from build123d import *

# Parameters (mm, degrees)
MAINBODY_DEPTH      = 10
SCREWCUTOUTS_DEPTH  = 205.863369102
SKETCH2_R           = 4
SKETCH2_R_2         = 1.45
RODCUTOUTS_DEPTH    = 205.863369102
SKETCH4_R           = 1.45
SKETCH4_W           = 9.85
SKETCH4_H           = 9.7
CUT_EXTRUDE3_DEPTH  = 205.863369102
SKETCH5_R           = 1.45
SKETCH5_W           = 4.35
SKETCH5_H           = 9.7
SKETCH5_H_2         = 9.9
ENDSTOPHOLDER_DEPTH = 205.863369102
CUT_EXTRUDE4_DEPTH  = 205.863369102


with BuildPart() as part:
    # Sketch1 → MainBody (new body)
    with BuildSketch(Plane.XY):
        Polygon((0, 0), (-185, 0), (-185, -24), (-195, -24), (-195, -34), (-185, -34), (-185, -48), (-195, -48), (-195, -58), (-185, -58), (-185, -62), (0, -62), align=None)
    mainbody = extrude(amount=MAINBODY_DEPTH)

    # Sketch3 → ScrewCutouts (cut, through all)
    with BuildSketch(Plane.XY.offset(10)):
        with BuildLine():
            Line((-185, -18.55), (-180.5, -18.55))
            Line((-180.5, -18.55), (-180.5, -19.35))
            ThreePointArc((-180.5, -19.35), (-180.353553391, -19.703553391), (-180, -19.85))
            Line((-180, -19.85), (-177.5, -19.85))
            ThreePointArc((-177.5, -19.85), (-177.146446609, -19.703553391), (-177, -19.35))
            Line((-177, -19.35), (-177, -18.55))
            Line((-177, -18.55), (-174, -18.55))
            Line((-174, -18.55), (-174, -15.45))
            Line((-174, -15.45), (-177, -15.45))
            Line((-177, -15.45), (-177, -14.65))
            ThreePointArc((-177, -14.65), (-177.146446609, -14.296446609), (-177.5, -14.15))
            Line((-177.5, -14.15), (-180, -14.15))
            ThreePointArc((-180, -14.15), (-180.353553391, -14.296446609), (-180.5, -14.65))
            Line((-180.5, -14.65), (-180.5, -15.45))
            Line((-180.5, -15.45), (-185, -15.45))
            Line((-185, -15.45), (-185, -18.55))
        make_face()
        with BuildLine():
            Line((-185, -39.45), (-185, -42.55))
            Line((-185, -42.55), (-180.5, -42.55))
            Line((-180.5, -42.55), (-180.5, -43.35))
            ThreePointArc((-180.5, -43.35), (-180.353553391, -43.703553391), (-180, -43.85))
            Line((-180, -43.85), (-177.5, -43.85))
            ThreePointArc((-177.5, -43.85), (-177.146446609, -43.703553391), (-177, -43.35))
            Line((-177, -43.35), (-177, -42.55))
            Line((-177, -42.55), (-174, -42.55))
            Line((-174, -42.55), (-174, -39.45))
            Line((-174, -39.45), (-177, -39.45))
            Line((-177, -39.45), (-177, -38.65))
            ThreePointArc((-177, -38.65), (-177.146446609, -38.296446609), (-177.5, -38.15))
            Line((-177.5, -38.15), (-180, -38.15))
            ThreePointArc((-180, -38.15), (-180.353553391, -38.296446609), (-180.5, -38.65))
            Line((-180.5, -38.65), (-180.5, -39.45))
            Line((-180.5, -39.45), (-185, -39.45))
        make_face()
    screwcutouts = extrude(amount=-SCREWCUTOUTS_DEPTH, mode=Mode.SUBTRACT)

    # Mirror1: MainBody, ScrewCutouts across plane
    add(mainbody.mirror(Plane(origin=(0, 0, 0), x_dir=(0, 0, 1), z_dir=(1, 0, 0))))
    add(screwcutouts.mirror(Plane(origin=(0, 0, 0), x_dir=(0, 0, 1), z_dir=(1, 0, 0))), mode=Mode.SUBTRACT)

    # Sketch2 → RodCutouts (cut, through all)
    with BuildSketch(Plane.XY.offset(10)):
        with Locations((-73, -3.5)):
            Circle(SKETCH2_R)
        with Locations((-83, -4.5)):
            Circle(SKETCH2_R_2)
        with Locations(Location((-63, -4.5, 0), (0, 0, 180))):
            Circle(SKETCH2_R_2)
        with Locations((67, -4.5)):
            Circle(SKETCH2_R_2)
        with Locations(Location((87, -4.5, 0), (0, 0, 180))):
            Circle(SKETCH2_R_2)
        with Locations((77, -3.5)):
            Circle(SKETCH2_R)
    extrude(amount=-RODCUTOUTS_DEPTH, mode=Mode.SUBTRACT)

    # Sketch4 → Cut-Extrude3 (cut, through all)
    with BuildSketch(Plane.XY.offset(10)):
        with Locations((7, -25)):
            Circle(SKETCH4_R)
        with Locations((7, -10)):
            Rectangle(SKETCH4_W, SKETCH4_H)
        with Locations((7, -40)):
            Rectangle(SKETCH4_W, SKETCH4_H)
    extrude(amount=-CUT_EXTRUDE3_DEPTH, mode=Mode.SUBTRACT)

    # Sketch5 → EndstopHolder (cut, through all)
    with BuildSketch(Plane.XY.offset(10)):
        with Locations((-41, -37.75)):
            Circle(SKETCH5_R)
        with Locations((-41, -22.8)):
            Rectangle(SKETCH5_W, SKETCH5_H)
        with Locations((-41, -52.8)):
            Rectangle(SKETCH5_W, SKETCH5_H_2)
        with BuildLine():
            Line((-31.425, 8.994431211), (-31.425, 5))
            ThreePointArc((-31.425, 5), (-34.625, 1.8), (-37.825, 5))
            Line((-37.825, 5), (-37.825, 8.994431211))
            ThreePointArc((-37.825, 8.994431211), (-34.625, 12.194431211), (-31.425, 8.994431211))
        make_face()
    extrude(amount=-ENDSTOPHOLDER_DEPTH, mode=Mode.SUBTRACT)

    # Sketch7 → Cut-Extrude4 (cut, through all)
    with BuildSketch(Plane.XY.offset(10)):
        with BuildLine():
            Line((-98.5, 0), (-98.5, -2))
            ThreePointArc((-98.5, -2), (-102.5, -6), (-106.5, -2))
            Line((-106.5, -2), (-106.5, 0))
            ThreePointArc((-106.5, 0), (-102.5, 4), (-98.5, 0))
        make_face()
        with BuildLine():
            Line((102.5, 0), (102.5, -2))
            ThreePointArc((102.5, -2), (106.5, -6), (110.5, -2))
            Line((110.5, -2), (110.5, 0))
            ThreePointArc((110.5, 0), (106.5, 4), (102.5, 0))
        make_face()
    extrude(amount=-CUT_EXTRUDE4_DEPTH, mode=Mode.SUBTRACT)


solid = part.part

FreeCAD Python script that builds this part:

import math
import FreeCAD as App
import Part
import Sketcher

V = App.Vector

doc = App.newDocument("Part")
params = doc.addObject("Spreadsheet::Sheet", "Params")
for row, (alias, value) in enumerate([
    ("sketch1_width", "185 mm"),
    ("sketch1_width2", "10 mm"),
    ("sketch1_height", "24 mm"),
    ("sketch1_height2", "14 mm"),
    ("sketch1_height3", "4 mm"),
    ("pad1_length", "10 mm"),
    ("sketch2_radius", "0.5 mm"),
    ("sketch2_width", "3 mm"),
    ("sketch2_width2", "4.5 mm"),
    ("sketch2_width3", "2.5 mm"),
    ("sketch2_height", "0.8 mm"),
    ("sketch3_diameter", "8 mm"),
    ("sketch3_diameter2", "2.9 mm"),
    ("sketch4_diameter", "2.9 mm"),
    ("sketch4_height", "9.7 mm"),
    ("sketch4_width", "9.85 mm"),
    ("sketch5_diameter", "2.9 mm"),
    ("sketch5_radius", "3.2 mm"),
    ("sketch5_height", "9.7 mm"),
    ("sketch5_height2", "9.9 mm"),
    ("sketch5_width", "4.35 mm"),
    ("sketch6_radius", "4 mm"),
    ("sketch6_height", "2 mm"),
], start=1):
    params.set(f"A{row}", alias)
    params.set(f"B{row}", "=" + value)
    params.setAlias(f"B{row}", alias)

body = doc.addObject("PartDesign::Body", "Body")

sketch1 = body.newObject("Sketcher::SketchObject", "Sketch")
sketch1.AttachmentSupport = (doc.getObject("XY_Plane"), [""])
sketch1.MapMode = "FlatFace"
sketch1.addGeometry([
    Part.LineSegment(V(0, 0, 0), V(-185, 0, 0)),
    Part.LineSegment(V(-185, 0, 0), V(-185, -24, 0)),
    Part.LineSegment(V(-185, -24, 0), V(-195, -24, 0)),
    Part.LineSegment(V(-195, -24, 0), V(-195, -34, 0)),
    Part.LineSegment(V(-195, -34, 0), V(-185, -34, 0)),
    Part.LineSegment(V(-185, -34, 0), V(-185, -48, 0)),
    Part.LineSegment(V(-185, -48, 0), V(-195, -48, 0)),
    Part.LineSegment(V(-195, -48, 0), V(-195, -58, 0)),
    Part.LineSegment(V(-195, -58, 0), V(-185, -58, 0)),
    Part.LineSegment(V(-185, -58, 0), V(-185, -62, 0)),
    Part.LineSegment(V(-185, -62, 0), V(0, -62, 0)),
    Part.LineSegment(V(0, -62, 0), V(0, 0, 0)),
], False)
sketch1.addConstraint([
    Sketcher.Constraint("Coincident", 0, 2, 1, 1),
    Sketcher.Constraint("Coincident", 1, 2, 2, 1),
    Sketcher.Constraint("Coincident", 2, 2, 3, 1),
    Sketcher.Constraint("Coincident", 3, 2, 4, 1),
    Sketcher.Constraint("Coincident", 4, 2, 5, 1),
    Sketcher.Constraint("Coincident", 5, 2, 6, 1),
    Sketcher.Constraint("Coincident", 6, 2, 7, 1),
    Sketcher.Constraint("Coincident", 7, 2, 8, 1),
    Sketcher.Constraint("Coincident", 8, 2, 9, 1),
    Sketcher.Constraint("Coincident", 9, 2, 10, 1),
    Sketcher.Constraint("Coincident", 10, 2, 11, 1),
    Sketcher.Constraint("Coincident", 11, 2, 0, 1),
    Sketcher.Constraint("Horizontal", 0),
    Sketcher.Constraint("Vertical", 1),
    Sketcher.Constraint("Horizontal", 2),
    Sketcher.Constraint("Vertical", 3),
    Sketcher.Constraint("Horizontal", 4),
    Sketcher.Constraint("Vertical", 5),
    Sketcher.Constraint("Horizontal", 6),
    Sketcher.Constraint("Vertical", 7),
    Sketcher.Constraint("Horizontal", 8),
    Sketcher.Constraint("Vertical", 9),
    Sketcher.Constraint("Horizontal", 10),
    Sketcher.Constraint("Vertical", 11),
    Sketcher.Constraint("Coincident", 11, 2, -1, 1),
    Sketcher.Constraint("Vertical", 1, 2, 4, 2),
    Sketcher.Constraint("Vertical", 3, 2, 6, 2),
    Sketcher.Constraint("Vertical", 5, 2, 8, 2),
    Sketcher.Constraint("Equal", 8, 3),
    Sketcher.Constraint("Equal", 3, 7),
    Sketcher.Constraint("DistanceX", 0, 2, 0, 1, 185.0),
    Sketcher.Constraint("DistanceX", 2, 2, 2, 1, 10.0),
    Sketcher.Constraint("DistanceY", 1, 2, 1, 1, 24.0),
    Sketcher.Constraint("DistanceY", 5, 2, 5, 1, 14.0),
    Sketcher.Constraint("DistanceY", 9, 2, 9, 1, 4.0),
])
sketch1.setExpression("Constraints[30]", "Params.sketch1_width")
sketch1.setExpression("Constraints[31]", "Params.sketch1_width2")
sketch1.setExpression("Constraints[32]", "Params.sketch1_height")
sketch1.setExpression("Constraints[33]", "Params.sketch1_height2")
sketch1.setExpression("Constraints[34]", "Params.sketch1_height3")
pad1 = body.newObject("PartDesign::Pad", "Pad")
pad1.Profile = sketch1
pad1.setExpression("Length", "Params.pad1_length")

sketch2 = body.newObject("Sketcher::SketchObject", "Sketch001")
sketch2.AttachmentSupport = (doc.getObject("XY_Plane"), [""])
sketch2.MapMode = "FlatFace"
sketch2.AttachmentOffset = App.Placement(V(0, 0, 10), App.Rotation())
sketch2.addGeometry([
    Part.LineSegment(V(-185, -18.55, 0), V(-180.5, -18.55, 0)),
    Part.LineSegment(V(-180.5, -18.55, 0), V(-180.5, -19.35, 0)),
    Part.ArcOfCircle(Part.Circle(V(-180, -19.35, 0), V(0, 0, 1), 0.5), math.radians(180), math.radians(270)),
    Part.LineSegment(V(-180, -19.85, 0), V(-177.5, -19.85, 0)),
    Part.ArcOfCircle(Part.Circle(V(-177.5, -19.35, 0), V(0, 0, 1), 0.5), math.radians(-90), math.radians(0)),
    Part.LineSegment(V(-177, -19.35, 0), V(-177, -18.55, 0)),
    Part.LineSegment(V(-177, -18.55, 0), V(-174, -18.55, 0)),
    Part.LineSegment(V(-174, -18.55, 0), V(-174, -15.45, 0)),
    Part.LineSegment(V(-174, -15.45, 0), V(-177, -15.45, 0)),
    Part.LineSegment(V(-177, -15.45, 0), V(-177, -14.65, 0)),
    Part.ArcOfCircle(Part.Circle(V(-177.5, -14.65, 0), V(0, 0, 1), 0.5), math.radians(0), math.radians(90)),
    Part.LineSegment(V(-177.5, -14.15, 0), V(-180, -14.15, 0)),
    Part.ArcOfCircle(Part.Circle(V(-180, -14.65, 0), V(0, 0, 1), 0.5), math.radians(90), math.radians(180)),
    Part.LineSegment(V(-180.5, -14.65, 0), V(-180.5, -15.45, 0)),
    Part.LineSegment(V(-180.5, -15.45, 0), V(-185, -15.45, 0)),
    Part.LineSegment(V(-185, -15.45, 0), V(-185, -18.55, 0)),
    Part.LineSegment(V(-185, -39.45, 0), V(-185, -42.55, 0)),
    Part.LineSegment(V(-185, -42.55, 0), V(-180.5, -42.55, 0)),
    Part.LineSegment(V(-180.5, -42.55, 0), V(-180.5, -43.35, 0)),
    Part.ArcOfCircle(Part.Circle(V(-180, -43.35, 0), V(0, 0, 1), 0.5), math.radians(180), math.radians(270)),
    Part.LineSegment(V(-180, -43.85, 0), V(-177.5, -43.85, 0)),
    Part.ArcOfCircle(Part.Circle(V(-177.5, -43.35, 0), V(0, 0, 1), 0.5), math.radians(-90), math.radians(0)),
    Part.LineSegment(V(-177, -43.35, 0), V(-177, -42.55, 0)),
    Part.LineSegment(V(-177, -42.55, 0), V(-174, -42.55, 0)),
    Part.LineSegment(V(-174, -42.55, 0), V(-174, -39.45, 0)),
    Part.LineSegment(V(-174, -39.45, 0), V(-177, -39.45, 0)),
    Part.LineSegment(V(-177, -39.45, 0), V(-177, -38.65, 0)),
    Part.ArcOfCircle(Part.Circle(V(-177.5, -38.65, 0), V(0, 0, 1), 0.5), math.radians(0), math.radians(90)),
    Part.LineSegment(V(-177.5, -38.15, 0), V(-180, -38.15, 0)),
    Part.ArcOfCircle(Part.Circle(V(-180, -38.65, 0), V(0, 0, 1), 0.5), math.radians(90), math.radians(180)),
    Part.LineSegment(V(-180.5, -38.65, 0), V(-180.5, -39.45, 0)),
    Part.LineSegment(V(-180.5, -39.45, 0), V(-185, -39.45, 0)),
], False)
sketch2.addConstraint([
    Sketcher.Constraint("Coincident", 0, 2, 1, 1),
    Sketcher.Constraint("Tangent", 1, 2, 2, 1),
    Sketcher.Constraint("Tangent", 2, 2, 3, 1),
    Sketcher.Constraint("Tangent", 3, 2, 4, 1),
    Sketcher.Constraint("Tangent", 4, 2, 5, 1),
    Sketcher.Constraint("Coincident", 5, 2, 6, 1),
    Sketcher.Constraint("Coincident", 6, 2, 7, 1),
    Sketcher.Constraint("Coincident", 7, 2, 8, 1),
    Sketcher.Constraint("Coincident", 8, 2, 9, 1),
    Sketcher.Constraint("Tangent", 9, 2, 10, 1),
    Sketcher.Constraint("Tangent", 10, 2, 11, 1),
    Sketcher.Constraint("Tangent", 11, 2, 12, 1),
    Sketcher.Constraint("Tangent", 12, 2, 13, 1),
    Sketcher.Constraint("Coincident", 13, 2, 14, 1),
    Sketcher.Constraint("Coincident", 14, 2, 15, 1),
    Sketcher.Constraint("Coincident", 15, 2, 0, 1),
    Sketcher.Constraint("Coincident", 16, 2, 17, 1),
    Sketcher.Constraint("Coincident", 17, 2, 18, 1),
    Sketcher.Constraint("Tangent", 18, 2, 19, 1),
    Sketcher.Constraint("Tangent", 19, 2, 20, 1),
    Sketcher.Constraint("Tangent", 20, 2, 21, 1),
    Sketcher.Constraint("Tangent", 21, 2, 22, 1),
    Sketcher.Constraint("Coincident", 22, 2, 23, 1),
    Sketcher.Constraint("Coincident", 23, 2, 24, 1),
    Sketcher.Constraint("Coincident", 24, 2, 25, 1),
    Sketcher.Constraint("Coincident", 25, 2, 26, 1),
    Sketcher.Constraint("Tangent", 26, 2, 27, 1),
    Sketcher.Constraint("Tangent", 27, 2, 28, 1),
    Sketcher.Constraint("Tangent", 28, 2, 29, 1),
    Sketcher.Constraint("Tangent", 29, 2, 30, 1),
    Sketcher.Constraint("Coincident", 30, 2, 31, 1),
    Sketcher.Constraint("Coincident", 31, 2, 16, 1),
    Sketcher.Constraint("Horizontal", 0),
    Sketcher.Constraint("Vertical", 1),
    Sketcher.Constraint("Horizontal", 3),
    Sketcher.Constraint("Vertical", 5),
    Sketcher.Constraint("Horizontal", 6),
    Sketcher.Constraint("Vertical", 7),
    Sketcher.Constraint("Horizontal", 8),
    Sketcher.Constraint("Vertical", 9),
    Sketcher.Constraint("Horizontal", 11),
    Sketcher.Constraint("Vertical", 13),
    Sketcher.Constraint("Horizontal", 14),
    Sketcher.Constraint("Vertical", 15),
    Sketcher.Constraint("Vertical", 16),
    Sketcher.Constraint("Horizontal", 17),
    Sketcher.Constraint("Vertical", 18),
    Sketcher.Constraint("Horizontal", 20),
    Sketcher.Constraint("Vertical", 22),
    Sketcher.Constraint("Horizontal", 23),
    Sketcher.Constraint("Vertical", 24),
    Sketcher.Constraint("Horizontal", 25),
    Sketcher.Constraint("Vertical", 26),
    Sketcher.Constraint("Horizontal", 28),
    Sketcher.Constraint("Vertical", 30),
    Sketcher.Constraint("Horizontal", 31),
    Sketcher.Constraint("Equal", 2, 4),
    Sketcher.Constraint("Equal", 4, 10),
    Sketcher.Constraint("Equal", 10, 12),
    Sketcher.Constraint("Equal", 12, 19),
    Sketcher.Constraint("Equal", 19, 21),
    Sketcher.Constraint("Equal", 21, 27),
    Sketcher.Constraint("Equal", 27, 29),
    Sketcher.Constraint("Horizontal", 0, 2, 5, 2),
    Sketcher.Constraint("Horizontal", 8, 2, 13, 2),
    Sketcher.Constraint("Horizontal", 17, 2, 22, 2),
    Sketcher.Constraint("Horizontal", 25, 2, 30, 2),
    Sketcher.Constraint("Vertical", 4, 3, 10, 3),
    Sketcher.Constraint("Vertical", 2, 3, 12, 3),
    Sketcher.Constraint("Vertical", 12, 3, 19, 3),
    Sketcher.Constraint("Vertical", 10, 3, 21, 3),
    Sketcher.Constraint("Vertical", 21, 3, 27, 3),
    Sketcher.Constraint("Vertical", 19, 3, 29, 3),
    Sketcher.Constraint("Vertical", 15, 2, 16, 2),
    Sketcher.Constraint("Vertical", 7, 2, 23, 2),
    Sketcher.Constraint("Equal", 5, 9),
    Sketcher.Constraint("Equal", 15, 16),
    Sketcher.Constraint("Equal", 13, 18),
    Sketcher.Constraint("Equal", 22, 26),
    Sketcher.Constraint("Radius", 2, 0.5),
    Sketcher.Constraint("DistanceX", 6, 1, 6, 2, 3.0),
    Sketcher.Constraint("DistanceX", 0, 1, 0, 2, 4.5),
    Sketcher.Constraint("DistanceX", 3, 1, 3, 2, 2.5),
    Sketcher.Constraint("DistanceY", 1, 2, 1, 1, 0.8),
    Sketcher.Constraint("DistanceY", 7, 1, 7, 2, 3.1),
    Sketcher.Constraint("DistanceX", 2, 3, -1, 1, 180.0),
    Sketcher.Constraint("DistanceY", 19, 3, 2, 3, 24.0),
    Sketcher.Constraint("DistanceY", 2, 3, -1, 1, 19.35),
])
sketch2.setExpression("Constraints[79]", "Params.sketch2_radius")
sketch2.setExpression("Constraints[80]", "Params.sketch2_width")
sketch2.setExpression("Constraints[81]", "Params.sketch2_width2")
sketch2.setExpression("Constraints[82]", "Params.sketch2_width3")
sketch2.setExpression("Constraints[83]", "Params.sketch2_height")
pocket1 = body.newObject("PartDesign::Pocket", "Pocket")
pocket1.Profile = sketch2
pocket1.Type = "ThroughAll"
doc.recompute()

mirrored = body.newObject("PartDesign::Mirrored", "Mirrored")
mirrored.Originals = [pad1, pocket1]
mirrored.MirrorPlane = (doc.getObject("YZ_Plane"), [""])
body.Tip = mirrored

sketch3 = body.newObject("Sketcher::SketchObject", "Sketch002")
sketch3.AttachmentSupport = (doc.getObject("XY_Plane"), [""])
sketch3.MapMode = "FlatFace"
sketch3.AttachmentOffset = App.Placement(V(0, 0, 10), App.Rotation())
sketch3.addGeometry([
    Part.Circle(V(-73, -3.5, 0), V(0, 0, 1), 4),
    Part.Circle(V(-83, -4.5, 0), V(0, 0, 1), 1.4),
    Part.Circle(V(-63, -4.5, 0), V(0, 0, 1), 1.4),
    Part.Circle(V(67, -4.5, 0), V(0, 0, 1), 1.4),
    Part.Circle(V(87, -4.5, 0), V(0, 0, 1), 1.4),
    Part.Circle(V(77, -3.5, 0), V(0, 0, 1), 4),
], False)
sketch3.addConstraint([
    Sketcher.Constraint("Equal", 1, 2),
    Sketcher.Constraint("Equal", 2, 3),
    Sketcher.Constraint("Equal", 3, 4),
    Sketcher.Constraint("Equal", 0, 5),
    Sketcher.Constraint("Horizontal", 1, 3, 2, 3),
    Sketcher.Constraint("Horizontal", 2, 3, 3, 3),
    Sketcher.Constraint("Horizontal", 3, 3, 4, 3),
    Sketcher.Constraint("Horizontal", 0, 3, 5, 3),
    Sketcher.Constraint("Diameter", 0, 8.0),
    Sketcher.Constraint("Diameter", 1, 2.9),
    Sketcher.Constraint("DistanceX", 0, 3, -1, 1, 73.0),
    Sketcher.Constraint("DistanceX", 1, 3, -1, 1, 83.0),
    Sketcher.Constraint("DistanceX", 2, 3, -1, 1, 63.0),
    Sketcher.Constraint("DistanceX", -1, 1, 3, 3, 67.0),
    Sketcher.Constraint("DistanceX", -1, 1, 4, 3, 87.0),
    Sketcher.Constraint("DistanceX", -1, 1, 5, 3, 77.0),
    Sketcher.Constraint("DistanceY", 1, 3, 0, 3, 1.0),
    Sketcher.Constraint("DistanceY", 0, 3, -1, 1, 3.5),
])
sketch3.setExpression("Constraints[8]", "Params.sketch3_diameter")
sketch3.setExpression("Constraints[9]", "Params.sketch3_diameter2")
pocket2 = body.newObject("PartDesign::Pocket", "Pocket001")
pocket2.Profile = sketch3
pocket2.Type = "ThroughAll"

sketch4 = body.newObject("Sketcher::SketchObject", "Sketch003")
sketch4.AttachmentSupport = (doc.getObject("XY_Plane"), [""])
sketch4.MapMode = "FlatFace"
sketch4.AttachmentOffset = App.Placement(V(0, 0, 10), App.Rotation())
sketch4.addGeometry([
    Part.Circle(V(7, -25, 0), V(0, 0, 1), 1.4),
    Part.LineSegment(V(2.1, -5.2, 0), V(2.1, -14.8, 0)),
    Part.LineSegment(V(2.1, -14.8, 0), V(11.9, -14.8, 0)),
    Part.LineSegment(V(11.9, -14.8, 0), V(11.9, -5.2, 0)),
    Part.LineSegment(V(11.9, -5.2, 0), V(2.1, -5.2, 0)),
    Part.LineSegment(V(2.1, -35.1, 0), V(2.1, -44.9, 0)),
    Part.LineSegment(V(2.1, -44.9, 0), V(11.9, -44.9, 0)),
    Part.LineSegment(V(11.9, -44.9, 0), V(11.9, -35.1, 0)),
    Part.LineSegment(V(11.9, -35.1, 0), V(2.1, -35.1, 0)),
], False)
sketch4.addConstraint([
    Sketcher.Constraint("Coincident", 1, 2, 2, 1),
    Sketcher.Constraint("Coincident", 2, 2, 3, 1),
    Sketcher.Constraint("Coincident", 3, 2, 4, 1),
    Sketcher.Constraint("Coincident", 4, 2, 1, 1),
    Sketcher.Constraint("Coincident", 5, 2, 6, 1),
    Sketcher.Constraint("Coincident", 6, 2, 7, 1),
    Sketcher.Constraint("Coincident", 7, 2, 8, 1),
    Sketcher.Constraint("Coincident", 8, 2, 5, 1),
    Sketcher.Constraint("Vertical", 1),
    Sketcher.Constraint("Horizontal", 2),
    Sketcher.Constraint("Vertical", 3),
    Sketcher.Constraint("Horizontal", 4),
    Sketcher.Constraint("Vertical", 5),
    Sketcher.Constraint("Horizontal", 6),
    Sketcher.Constraint("Vertical", 7),
    Sketcher.Constraint("Horizontal", 8),
    Sketcher.Constraint("Vertical", 4, 2, 5, 2),
    Sketcher.Constraint("Vertical", 3, 2, 6, 2),
    Sketcher.Constraint("Equal", 3, 5),
    Sketcher.Constraint("Diameter", 0, 2.9),
    Sketcher.Constraint("DistanceY", 1, 2, 1, 1, 9.7),
    Sketcher.Constraint("DistanceX", -1, 1, 0, 3, 7.0),
    Sketcher.Constraint("DistanceY", 0, 3, -1, 1, 25.0),
    Sketcher.Constraint("DistanceY", 5, 2, 1, 2, 30.0),
    Sketcher.Constraint("DistanceX", 2, 1, 2, 2, 9.85),
    Sketcher.Constraint("DistanceY", 1, 2, -1, 1, 14.85),
    Sketcher.Constraint("DistanceX", -1, 1, 1, 2, 2.075),
])
sketch4.setExpression("Constraints[19]", "Params.sketch4_diameter")
sketch4.setExpression("Constraints[20]", "Params.sketch4_height")
sketch4.setExpression("Constraints[24]", "Params.sketch4_width")
pocket3 = body.newObject("PartDesign::Pocket", "Pocket002")
pocket3.Profile = sketch4
pocket3.Type = "ThroughAll"

sketch5 = body.newObject("Sketcher::SketchObject", "Sketch004")
sketch5.AttachmentSupport = (doc.getObject("XY_Plane"), [""])
sketch5.MapMode = "FlatFace"
sketch5.AttachmentOffset = App.Placement(V(0, 0, 10), App.Rotation())
sketch5.addGeometry([
    Part.Circle(V(-41, -37.8, 0), V(0, 0, 1), 1.4),
    Part.LineSegment(V(-43.2, -17.9, 0), V(-43.2, -27.6, 0)),
    Part.LineSegment(V(-43.2, -27.6, 0), V(-38.8, -27.6, 0)),
    Part.LineSegment(V(-38.8, -27.6, 0), V(-38.8, -17.9, 0)),
    Part.LineSegment(V(-38.8, -17.9, 0), V(-43.2, -17.9, 0)),
    Part.LineSegment(V(-43.2, -47.9, 0), V(-43.2, -57.8, 0)),
    Part.LineSegment(V(-43.2, -57.8, 0), V(-38.8, -57.8, 0)),
    Part.LineSegment(V(-38.8, -57.8, 0), V(-38.8, -47.9, 0)),
    Part.LineSegment(V(-38.8, -47.9, 0), V(-43.2, -47.9, 0)),
    Part.LineSegment(V(-31.4, 5, 0), V(-31.4, 9, 0)),
    Part.ArcOfCircle(Part.Circle(V(-34.6, 9, 0), V(0, 0, 1), 3.2), math.radians(0), math.radians(180)),
    Part.LineSegment(V(-37.8, 9, 0), V(-37.8, 5, 0)),
    Part.ArcOfCircle(Part.Circle(V(-34.6, 5, 0), V(0, 0, 1), 3.2), math.radians(180), math.radians(360)),
], False)
sketch5.addConstraint([
    Sketcher.Constraint("Coincident", 1, 2, 2, 1),
    Sketcher.Constraint("Coincident", 2, 2, 3, 1),
    Sketcher.Constraint("Coincident", 3, 2, 4, 1),
    Sketcher.Constraint("Coincident", 4, 2, 1, 1),
    Sketcher.Constraint("Coincident", 5, 2, 6, 1),
    Sketcher.Constraint("Coincident", 6, 2, 7, 1),
    Sketcher.Constraint("Coincident", 7, 2, 8, 1),
    Sketcher.Constraint("Coincident", 8, 2, 5, 1),
    Sketcher.Constraint("Tangent", 9, 2, 10, 1),
    Sketcher.Constraint("Tangent", 10, 2, 11, 1),
    Sketcher.Constraint("Tangent", 11, 2, 12, 1),
    Sketcher.Constraint("Tangent", 12, 2, 9, 1),
    Sketcher.Constraint("Vertical", 1),
    Sketcher.Constraint("Horizontal", 2),
    Sketcher.Constraint("Vertical", 3),
    Sketcher.Constraint("Horizontal", 4),
    Sketcher.Constraint("Vertical", 5),
    Sketcher.Constraint("Horizontal", 6),
    Sketcher.Constraint("Vertical", 7),
    Sketcher.Constraint("Horizontal", 8),
    Sketcher.Constraint("Vertical", 9),
    Sketcher.Constraint("Vertical", 11),
    Sketcher.Constraint("Vertical", 4, 2, 5, 2),
    Sketcher.Constraint("Vertical", 3, 2, 6, 2),
    Sketcher.Constraint("Diameter", 0, 2.9),
    Sketcher.Constraint("Radius", 10, 3.2),
    Sketcher.Constraint("DistanceY", 1, 2, 1, 1, 9.7),
    Sketcher.Constraint("DistanceY", 5, 2, 5, 1, 9.9),
    Sketcher.Constraint("DistanceX", 0, 3, -1, 1, 41.0),
    Sketcher.Constraint("DistanceY", -1, 1, 12, 3, 5.0),
    Sketcher.Constraint("DistanceY", 5, 2, 0, 3, 20.0),
    Sketcher.Constraint("DistanceX", 3, 2, 10, 2, 1.0),
    Sketcher.Constraint("DistanceX", 2, 1, 2, 2, 4.35),
    Sketcher.Constraint("DistanceY", 0, 3, 1, 2, 10.1),
    Sketcher.Constraint("DistanceY", 0, 3, -1, 1, 37.75),
    Sketcher.Constraint("DistanceX", 10, 3, -1, 1, 34.625),
    Sketcher.Constraint("DistanceY", 9, 1, 9, 2, 3.994431),
])
sketch5.setExpression("Constraints[24]", "Params.sketch5_diameter")
sketch5.setExpression("Constraints[25]", "Params.sketch5_radius")
sketch5.setExpression("Constraints[26]", "Params.sketch5_height")
sketch5.setExpression("Constraints[27]", "Params.sketch5_height2")
sketch5.setExpression("Constraints[32]", "Params.sketch5_width")
pocket4 = body.newObject("PartDesign::Pocket", "Pocket003")
pocket4.Profile = sketch5
pocket4.Type = "ThroughAll"

sketch6 = body.newObject("Sketcher::SketchObject", "Sketch005")
sketch6.AttachmentSupport = (doc.getObject("XY_Plane"), [""])
sketch6.MapMode = "FlatFace"
sketch6.AttachmentOffset = App.Placement(V(0, 0, 10), App.Rotation())
sketch6.addGeometry([
    Part.LineSegment(V(-98.5, -2, 0), V(-98.5, 0, 0)),
    Part.ArcOfCircle(Part.Circle(V(-102.5, 0, 0), V(0, 0, 1), 4), math.radians(0), math.radians(180)),
    Part.LineSegment(V(-106.5, 0, 0), V(-106.5, -2, 0)),
    Part.ArcOfCircle(Part.Circle(V(-102.5, -2, 0), V(0, 0, 1), 4), math.radians(180), math.radians(360)),
    Part.LineSegment(V(102.5, 0, 0), V(102.5, -2, 0)),
    Part.ArcOfCircle(Part.Circle(V(106.5, -2, 0), V(0, 0, 1), 4), math.radians(180), math.radians(360)),
    Part.LineSegment(V(110.5, -2, 0), V(110.5, 0, 0)),
    Part.ArcOfCircle(Part.Circle(V(106.5, 0, 0), V(0, 0, 1), 4), math.radians(0), math.radians(180)),
], False)
sketch6.addConstraint([
    Sketcher.Constraint("Tangent", 0, 2, 1, 1),
    Sketcher.Constraint("Tangent", 1, 2, 2, 1),
    Sketcher.Constraint("Tangent", 2, 2, 3, 1),
    Sketcher.Constraint("Tangent", 3, 2, 0, 1),
    Sketcher.Constraint("Tangent", 4, 2, 5, 1),
    Sketcher.Constraint("Tangent", 5, 2, 6, 1),
    Sketcher.Constraint("Tangent", 6, 2, 7, 1),
    Sketcher.Constraint("Tangent", 7, 2, 4, 1),
    Sketcher.Constraint("Vertical", 0),
    Sketcher.Constraint("Vertical", 2),
    Sketcher.Constraint("Vertical", 4),
    Sketcher.Constraint("Vertical", 6),
    Sketcher.Constraint("Equal", 3, 5),
    Sketcher.Constraint("PointOnObject", 1, 3, -1),
    Sketcher.Constraint("PointOnObject", 7, 3, -1),
    Sketcher.Constraint("Horizontal", 3, 3, 5, 3),
    Sketcher.Constraint("Radius", 1, 4.0),
    Sketcher.Constraint("DistanceY", 0, 1, 0, 2, 2.0),
    Sketcher.Constraint("DistanceX", 3, 3, 5, 3, 209.0),
    Sketcher.Constraint("DistanceX", 1, 3, -1, 1, 102.5),
])
sketch6.setExpression("Constraints[16]", "Params.sketch6_radius")
sketch6.setExpression("Constraints[17]", "Params.sketch6_height")
pocket5 = body.newObject("PartDesign::Pocket", "Pocket004")
pocket5.Profile = sketch6
pocket5.Type = "ThroughAll"

doc.recompute()
